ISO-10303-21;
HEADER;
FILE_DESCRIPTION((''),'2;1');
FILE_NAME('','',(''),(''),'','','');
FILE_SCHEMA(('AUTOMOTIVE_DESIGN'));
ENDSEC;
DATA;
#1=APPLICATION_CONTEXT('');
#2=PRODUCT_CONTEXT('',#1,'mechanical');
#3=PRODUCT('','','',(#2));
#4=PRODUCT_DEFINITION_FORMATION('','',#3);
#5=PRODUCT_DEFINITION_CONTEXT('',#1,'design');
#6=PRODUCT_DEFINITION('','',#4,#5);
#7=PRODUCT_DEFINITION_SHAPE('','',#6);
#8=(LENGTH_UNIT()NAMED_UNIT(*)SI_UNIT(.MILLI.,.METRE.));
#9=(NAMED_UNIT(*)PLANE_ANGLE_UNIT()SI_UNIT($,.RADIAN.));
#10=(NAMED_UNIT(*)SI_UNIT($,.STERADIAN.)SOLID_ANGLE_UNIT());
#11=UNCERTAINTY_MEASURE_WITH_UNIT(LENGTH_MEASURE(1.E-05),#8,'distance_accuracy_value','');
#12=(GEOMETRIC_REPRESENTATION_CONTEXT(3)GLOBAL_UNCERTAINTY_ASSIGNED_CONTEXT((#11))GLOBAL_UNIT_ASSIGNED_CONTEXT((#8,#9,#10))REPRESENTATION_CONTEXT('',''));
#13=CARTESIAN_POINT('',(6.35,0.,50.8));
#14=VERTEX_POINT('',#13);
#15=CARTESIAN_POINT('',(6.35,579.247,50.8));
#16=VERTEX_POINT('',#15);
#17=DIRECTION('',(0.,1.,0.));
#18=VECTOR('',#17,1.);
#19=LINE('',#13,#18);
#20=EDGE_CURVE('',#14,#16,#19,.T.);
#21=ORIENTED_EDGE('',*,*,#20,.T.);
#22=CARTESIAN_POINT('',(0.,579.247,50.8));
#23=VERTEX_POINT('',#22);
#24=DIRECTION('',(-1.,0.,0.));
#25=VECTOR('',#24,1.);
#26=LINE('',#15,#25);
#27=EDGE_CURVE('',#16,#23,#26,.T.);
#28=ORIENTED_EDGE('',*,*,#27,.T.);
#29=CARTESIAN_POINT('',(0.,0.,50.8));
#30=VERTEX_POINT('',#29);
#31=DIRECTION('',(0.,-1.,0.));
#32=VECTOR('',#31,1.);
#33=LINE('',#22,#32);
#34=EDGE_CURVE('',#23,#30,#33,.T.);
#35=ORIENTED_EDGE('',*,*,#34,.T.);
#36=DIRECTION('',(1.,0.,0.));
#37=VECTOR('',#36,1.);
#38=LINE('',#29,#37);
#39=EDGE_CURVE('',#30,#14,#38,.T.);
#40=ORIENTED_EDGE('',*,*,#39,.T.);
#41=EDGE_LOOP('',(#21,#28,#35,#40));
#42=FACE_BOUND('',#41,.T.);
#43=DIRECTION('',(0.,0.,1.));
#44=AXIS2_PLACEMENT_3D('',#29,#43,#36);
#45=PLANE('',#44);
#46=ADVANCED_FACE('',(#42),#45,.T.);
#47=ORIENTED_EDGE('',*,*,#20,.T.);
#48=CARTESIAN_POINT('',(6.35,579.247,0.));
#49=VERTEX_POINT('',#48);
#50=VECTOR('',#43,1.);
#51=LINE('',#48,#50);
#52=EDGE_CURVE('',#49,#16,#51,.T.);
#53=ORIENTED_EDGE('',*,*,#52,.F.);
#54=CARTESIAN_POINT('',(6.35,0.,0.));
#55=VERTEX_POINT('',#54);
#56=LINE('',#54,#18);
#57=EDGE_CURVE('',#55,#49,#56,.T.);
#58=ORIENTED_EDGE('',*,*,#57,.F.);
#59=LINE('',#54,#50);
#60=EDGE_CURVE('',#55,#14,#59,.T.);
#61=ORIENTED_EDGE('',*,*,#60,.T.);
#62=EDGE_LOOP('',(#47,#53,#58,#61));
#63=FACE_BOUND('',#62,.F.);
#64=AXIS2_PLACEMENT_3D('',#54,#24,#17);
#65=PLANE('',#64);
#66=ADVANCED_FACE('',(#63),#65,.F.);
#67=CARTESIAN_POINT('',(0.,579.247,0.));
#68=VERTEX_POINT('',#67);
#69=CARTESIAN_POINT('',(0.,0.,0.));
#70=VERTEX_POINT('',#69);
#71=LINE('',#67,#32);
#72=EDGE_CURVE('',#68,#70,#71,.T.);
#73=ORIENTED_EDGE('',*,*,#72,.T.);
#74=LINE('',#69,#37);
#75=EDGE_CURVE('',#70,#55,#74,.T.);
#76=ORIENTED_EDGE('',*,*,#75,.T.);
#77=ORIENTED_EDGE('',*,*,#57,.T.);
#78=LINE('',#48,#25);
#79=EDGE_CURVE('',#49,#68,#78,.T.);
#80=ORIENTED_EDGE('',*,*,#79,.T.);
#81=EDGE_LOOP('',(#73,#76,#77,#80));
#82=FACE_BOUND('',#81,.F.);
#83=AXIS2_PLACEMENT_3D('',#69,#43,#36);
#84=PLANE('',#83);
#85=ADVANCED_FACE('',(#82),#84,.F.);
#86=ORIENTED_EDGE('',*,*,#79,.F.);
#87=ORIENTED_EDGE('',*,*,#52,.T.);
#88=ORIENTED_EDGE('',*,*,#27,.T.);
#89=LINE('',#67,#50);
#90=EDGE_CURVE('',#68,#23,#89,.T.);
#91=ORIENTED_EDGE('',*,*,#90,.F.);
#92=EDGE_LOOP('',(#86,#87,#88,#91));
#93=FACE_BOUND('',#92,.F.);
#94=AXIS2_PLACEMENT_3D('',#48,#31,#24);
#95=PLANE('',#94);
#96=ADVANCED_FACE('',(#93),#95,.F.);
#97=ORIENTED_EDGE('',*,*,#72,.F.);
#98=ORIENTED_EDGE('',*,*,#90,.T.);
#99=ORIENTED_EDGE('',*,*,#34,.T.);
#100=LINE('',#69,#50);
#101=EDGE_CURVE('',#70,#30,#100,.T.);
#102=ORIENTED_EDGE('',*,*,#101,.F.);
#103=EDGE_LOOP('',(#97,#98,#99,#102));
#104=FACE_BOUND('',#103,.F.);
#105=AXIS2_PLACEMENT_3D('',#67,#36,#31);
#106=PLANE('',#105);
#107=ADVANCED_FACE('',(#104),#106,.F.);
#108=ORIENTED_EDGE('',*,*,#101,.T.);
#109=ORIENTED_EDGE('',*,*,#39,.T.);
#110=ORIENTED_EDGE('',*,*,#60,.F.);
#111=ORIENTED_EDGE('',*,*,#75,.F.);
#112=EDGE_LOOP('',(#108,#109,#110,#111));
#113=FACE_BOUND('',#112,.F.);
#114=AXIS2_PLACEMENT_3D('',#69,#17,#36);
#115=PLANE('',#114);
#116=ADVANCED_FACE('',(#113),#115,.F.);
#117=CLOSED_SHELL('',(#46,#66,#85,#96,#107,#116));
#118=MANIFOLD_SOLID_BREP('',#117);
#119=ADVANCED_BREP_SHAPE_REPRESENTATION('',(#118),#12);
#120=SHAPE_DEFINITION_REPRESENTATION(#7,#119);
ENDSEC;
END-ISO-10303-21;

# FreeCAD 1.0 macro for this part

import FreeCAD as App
import Part
import Sketcher
from FreeCAD import Vector
Q = App.Units.Quantity

doc = App.newDocument("Part")
params = doc.addObject("Spreadsheet::Sheet", "Params")
for row, (alias, value) in enumerate([
    ("sketch1_width", "0.25 in"),
    ("sketch1_height", "22.805 in"),
    ("pad1_length", "2 in"),
], start=1):
    params.set(f"A{row}", alias)
    params.set(f"B{row}", "=" + value)
    params.setAlias(f"B{row}", alias)

body = doc.addObject("PartDesign::Body", "Body")

sketch1 = body.newObject("Sketcher::SketchObject", "Sketch")
sketch1.AttachmentSupport = (doc.getObject("XY_Plane"), [""])
sketch1.MapMode = "FlatFace"
sketch1.addGeometry([
    Part.LineSegment(Vector(0, 579, 0), Vector(0, 0, 0)),
    Part.LineSegment(Vector(0, 0, 0), Vector(6, 0, 0)),
    Part.LineSegment(Vector(6, 0, 0), Vector(6, 579, 0)),
    Part.LineSegment(Vector(6, 579, 0), Vector(0, 579, 0)),
], False)
sketch1.addConstraint([
    Sketcher.Constraint("Coincident", 0, 2, 1, 1),
    Sketcher.Constraint("Coincident", 1, 2, 2, 1),
    Sketcher.Constraint("Coincident", 2, 2, 3, 1),
    Sketcher.Constraint("Coincident", 3, 2, 0, 1),
    Sketcher.Constraint("Vertical", 0),
    Sketcher.Constraint("Horizontal", 1),
    Sketcher.Constraint("Vertical", 2),
    Sketcher.Constraint("Horizontal", 3),
    Sketcher.Constraint("Coincident", 0, 2, -1, 1),
    Sketcher.Constraint("DistanceX", 1, 1, 1, 2, Q("0.25 in")),
    Sketcher.Constraint("DistanceY", 0, 2, 0, 1, Q("22.805 in")),
])
sketch1.setExpression("Constraints[9]", "Params.sketch1_width")
sketch1.setExpression("Constraints[10]", "Params.sketch1_height")
pad1 = body.newObject("PartDesign::Pad", "Pad")
pad1.Profile = sketch1
pad1.setExpression("Length", "Params.pad1_length")

doc.recompute()
